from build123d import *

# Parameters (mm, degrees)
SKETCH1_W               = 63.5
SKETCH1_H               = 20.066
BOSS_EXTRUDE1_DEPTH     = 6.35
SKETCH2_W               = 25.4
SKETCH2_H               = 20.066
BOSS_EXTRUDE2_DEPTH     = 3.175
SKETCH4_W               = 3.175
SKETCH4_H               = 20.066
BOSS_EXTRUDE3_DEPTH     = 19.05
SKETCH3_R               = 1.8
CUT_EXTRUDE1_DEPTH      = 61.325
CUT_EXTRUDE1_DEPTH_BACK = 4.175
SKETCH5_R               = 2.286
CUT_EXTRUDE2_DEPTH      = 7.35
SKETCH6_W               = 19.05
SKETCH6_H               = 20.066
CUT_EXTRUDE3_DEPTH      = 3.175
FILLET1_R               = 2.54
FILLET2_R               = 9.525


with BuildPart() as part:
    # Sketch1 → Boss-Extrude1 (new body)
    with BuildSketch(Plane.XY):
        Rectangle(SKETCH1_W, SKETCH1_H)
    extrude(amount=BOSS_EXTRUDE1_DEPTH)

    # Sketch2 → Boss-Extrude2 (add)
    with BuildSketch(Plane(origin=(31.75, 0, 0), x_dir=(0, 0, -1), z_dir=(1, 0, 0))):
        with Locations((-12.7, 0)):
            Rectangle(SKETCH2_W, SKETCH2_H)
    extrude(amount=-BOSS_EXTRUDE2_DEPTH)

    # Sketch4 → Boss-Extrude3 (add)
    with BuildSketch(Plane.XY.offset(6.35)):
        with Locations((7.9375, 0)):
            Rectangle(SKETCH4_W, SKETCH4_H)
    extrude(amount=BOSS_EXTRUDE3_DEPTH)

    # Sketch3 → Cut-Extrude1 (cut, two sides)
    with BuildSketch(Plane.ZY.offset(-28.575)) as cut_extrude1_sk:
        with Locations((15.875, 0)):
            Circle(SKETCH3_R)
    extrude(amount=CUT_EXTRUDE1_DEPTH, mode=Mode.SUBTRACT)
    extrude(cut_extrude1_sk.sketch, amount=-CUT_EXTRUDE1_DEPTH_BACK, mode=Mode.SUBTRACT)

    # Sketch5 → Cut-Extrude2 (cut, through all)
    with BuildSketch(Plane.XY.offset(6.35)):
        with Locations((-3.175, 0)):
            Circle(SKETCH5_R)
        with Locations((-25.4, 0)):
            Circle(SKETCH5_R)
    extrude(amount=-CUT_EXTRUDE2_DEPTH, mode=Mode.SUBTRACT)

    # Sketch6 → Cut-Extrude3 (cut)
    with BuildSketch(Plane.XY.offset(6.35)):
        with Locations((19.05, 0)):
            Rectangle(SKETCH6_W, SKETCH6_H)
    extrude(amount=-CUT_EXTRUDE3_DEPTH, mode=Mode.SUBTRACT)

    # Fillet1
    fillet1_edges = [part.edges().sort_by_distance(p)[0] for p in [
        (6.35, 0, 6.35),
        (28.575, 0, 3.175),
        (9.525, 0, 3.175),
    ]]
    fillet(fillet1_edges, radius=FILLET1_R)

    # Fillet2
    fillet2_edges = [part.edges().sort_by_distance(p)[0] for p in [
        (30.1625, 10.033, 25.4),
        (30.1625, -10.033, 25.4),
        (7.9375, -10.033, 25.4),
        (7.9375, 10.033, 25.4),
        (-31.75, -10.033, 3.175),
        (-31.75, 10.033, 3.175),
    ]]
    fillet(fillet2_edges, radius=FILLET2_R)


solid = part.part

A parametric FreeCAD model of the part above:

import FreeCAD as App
import Part
import Sketcher

V = App.Vector
Q = App.Units.Quantity


def edges_at(feature, points):
    """Names of the edges that pass closest to the given points."""
    edges = feature.Shape.Edges
    near = lambda p: min(range(len(edges)), key=lambda i: edges[i].distToShape(Part.Vertex(*p))[0])
    return sorted({f"Edge{near(p) + 1}" for p in points})

doc = App.newDocument("Part")
body = doc.addObject("PartDesign::Body", "Body")

# Sketch on XY plane
sketch1 = body.newObject("Sketcher::SketchObject", "Sketch")
sketch1.AttachmentSupport = (doc.getObject("XY_Plane"), [""])
sketch1.MapMode = "FlatFace"
sketch1.addGeometry([
    Part.LineSegment(V(-32, 10, 0), V(-32, -10, 0)),
    Part.LineSegment(V(-32, -10, 0), V(32, -10, 0)),
    Part.LineSegment(V(32, -10, 0), V(32, 10, 0)),
    Part.LineSegment(V(32, 10, 0), V(-32, 10, 0)),
], False)
sketch1.addConstraint([
    Sketcher.Constraint("Coincident", 0, 2, 1, 1),
    Sketcher.Constraint("Coincident", 1, 2, 2, 1),
    Sketcher.Constraint("Coincident", 2, 2, 3, 1),
    Sketcher.Constraint("Coincident", 3, 2, 0, 1),
    Sketcher.Constraint("Vertical", 0),
    Sketcher.Constraint("Horizontal", 1),
    Sketcher.Constraint("Vertical", 2),
    Sketcher.Constraint("Horizontal", 3),
    Sketcher.Constraint("Symmetric", 0, 2, 2, 2, -1, 1),
    Sketcher.Constraint("DistanceX", 1, 1, 1, 2, Q("2.5 in")),
    Sketcher.Constraint("DistanceY", 0, 2, 0, 1, Q("0.79 in")),
])
pad1 = body.newObject("PartDesign::Pad", "Pad")
pad1.Profile = sketch1
pad1.Length = Q("0.25 in")

# Sketch on YZ plane
sketch2 = body.newObject("Sketcher::SketchObject", "Sketch001")
sketch2.AttachmentSupport = (doc.getObject("YZ_Plane"), [""])
sketch2.MapMode = "FlatFace"
sketch2.AttachmentOffset = App.Placement(V(0, 0, 1.25 * 25.4), App.Rotation())
sketch2.addGeometry([
    Part.LineSegment(V(10, 25, 0), V(-10, 25, 0)),
    Part.LineSegment(V(-10, 25, 0), V(-10, 0, 0)),
    Part.LineSegment(V(-10, 0, 0), V(10, 0, 0)),
    Part.LineSegment(V(10, 0, 0), V(10, 25, 0)),
], False)
sketch2.addConstraint([
    Sketcher.Constraint("Coincident", 0, 2, 1, 1),
    Sketcher.Constraint("Coincident", 1, 2, 2, 1),
    Sketcher.Constraint("Coincident", 2, 2, 3, 1),
    Sketcher.Constraint("Coincident", 3, 2, 0, 1),
    Sketcher.Constraint("Horizontal", 0),
    Sketcher.Constraint("Vertical", 1),
    Sketcher.Constraint("Horizontal", 2),
    Sketcher.Constraint("Vertical", 3),
    Sketcher.Constraint("Symmetric", 1, 2, 2, 2, -1, 1),
    Sketcher.Constraint("DistanceY", 1, 2, 1, 1, Q("1 in")),
    Sketcher.Constraint("DistanceX", 0, 2, 0, 1, Q("0.79 in")),
])
pad2 = body.newObject("PartDesign::Pad", "Pad001")
pad2.Profile = sketch2
pad2.Length = Q("0.125 in")
pad2.Reversed = True

# Sketch on XY plane
sketch3 = body.newObject("Sketcher::SketchObject", "Sketch002")
sketch3.AttachmentSupport = (doc.getObject("XY_Plane"), [""])
sketch3.MapMode = "FlatFace"
sketch3.AttachmentOffset = App.Placement(V(0, 0, 0.25 * 25.4), App.Rotation())
sketch3.addGeometry([
    Part.LineSegment(V(6.3, 10, 0), V(6.3, -10, 0)),
    Part.LineSegment(V(6.3, -10, 0), V(9.5, -10, 0)),
    Part.LineSegment(V(9.5, -10, 0), V(9.5, 10, 0)),
    Part.LineSegment(V(9.5, 10, 0), V(6.3, 10, 0)),
], False)
sketch3.addConstraint([
    Sketcher.Constraint("Coincident", 0, 2, 1, 1),
    Sketcher.Constraint("Coincident", 1, 2, 2, 1),
    Sketcher.Constraint("Coincident", 2, 2, 3, 1),
    Sketcher.Constraint("Coincident", 3, 2, 0, 1),
    Sketcher.Constraint("Vertical", 0),
    Sketcher.Constraint("Horizontal", 1),
    Sketcher.Constraint("Vertical", 2),
    Sketcher.Constraint("Horizontal", 3),
    Sketcher.Constraint("DistanceY", 0, 2, 0, 1, Q("0.79 in")),
    Sketcher.Constraint("DistanceX", 1, 1, 1, 2, Q("0.125 in")),
    Sketcher.Constraint("DistanceX", -1, 1, 0, 2, Q("0.25 in")),
    Sketcher.Constraint("DistanceY", 0, 2, -1, 1, Q("0.395 in")),
])
pad3 = body.newObject("PartDesign::Pad", "Pad002")
pad3.Profile = sketch3
pad3.Length = Q("0.75 in")

# Sketch on YZ plane
sketch4 = body.newObject("Sketcher::SketchObject", "Sketch003")
sketch4.AttachmentSupport = (doc.getObject("YZ_Plane"), [""])
sketch4.MapMode = "FlatFace"
sketch4.AttachmentOffset = App.Placement(V(0, 0, 1.125 * 25.4), App.Rotation())
sketch4.addGeometry(Part.Circle(V(0, 15.9, 0), V(0, 0, 1), 1.8), False)
sketch4.addConstraint([
    Sketcher.Constraint("PointOnObject", 0, 3, -2),
    Sketcher.Constraint("Diameter", 0, 3.6),
    Sketcher.Constraint("DistanceY", -1, 1, 0, 3, Q("0.625 in")),
])
pocket1 = body.newObject("PartDesign::Pocket", "Pocket")
pocket1.Profile = sketch4
pocket1.Type = "ThroughAll"
pocket1.Midplane = True

# Sketch on XY plane
sketch5 = body.newObject("Sketcher::SketchObject", "Sketch004")
sketch5.AttachmentSupport = (doc.getObject("XY_Plane"), [""])
sketch5.MapMode = "FlatFace"
sketch5.AttachmentOffset = App.Placement(V(0, 0, 0.25 * 25.4), App.Rotation())
sketch5.addGeometry([
    Part.Circle(V(-3.2, 0, 0), V(0, 0, 1), 2.3),
    Part.Circle(V(-25.4, 0, 0), V(0, 0, 1), 2.3),
], False)
sketch5.addConstraint([
    Sketcher.Constraint("Equal", 0, 1),
    Sketcher.Constraint("PointOnObject", 0, 3, -1),
    Sketcher.Constraint("PointOnObject", 1, 3, -1),
    Sketcher.Constraint("Diameter", 0, Q("0.18 in")),
    Sketcher.Constraint("DistanceX", 1, 3, -1, 1, Q("1 in")),
    Sketcher.Constraint("DistanceX", 0, 3, -1, 1, Q("0.125 in")),
])
pocket2 = body.newObject("PartDesign::Pocket", "Pocket001")
pocket2.Profile = sketch5
pocket2.Type = "ThroughAll"

# Sketch on XY plane
sketch6 = body.newObject("Sketcher::SketchObject", "Sketch005")
sketch6.AttachmentSupport = (doc.getObject("XY_Plane"), [""])
sketch6.MapMode = "FlatFace"
sketch6.AttachmentOffset = App.Placement(V(0, 0, 0.25 * 25.4), App.Rotation())
sketch6.addGeometry([
    Part.LineSegment(V(10, 10, 0), V(10, -10, 0)),
    Part.LineSegment(V(10, -10, 0), V(29, -10, 0)),
    Part.LineSegment(V(29, -10, 0), V(29, 10, 0)),
    Part.LineSegment(V(29, 10, 0), V(10, 10, 0)),
], False)
sketch6.addConstraint([
    Sketcher.Constraint("Coincident", 0, 2, 1, 1),
    Sketcher.Constraint("Coincident", 1, 2, 2, 1),
    Sketcher.Constraint("Coincident", 2, 2, 3, 1),
    Sketcher.Constraint("Coincident", 3, 2, 0, 1),
    Sketcher.Constraint("Vertical", 0),
    Sketcher.Constraint("Horizontal", 1),
    Sketcher.Constraint("Vertical", 2),
    Sketcher.Constraint("Horizontal", 3),
    Sketcher.Constraint("DistanceX", 1, 1, 1, 2, Q("0.75 in")),
    Sketcher.Constraint("DistanceY", 0, 2, 0, 1, Q("0.79 in")),
    Sketcher.Constraint("DistanceX", -1, 1, 0, 2, Q("0.375 in")),
    Sketcher.Constraint("DistanceY", 0, 2, -1, 1, Q("0.395 in")),
])
pocket3 = body.newObject("PartDesign::Pocket", "Pocket002")
pocket3.Profile = sketch6
pocket3.Length = Q("0.125 in")
doc.recompute()

fillet = body.newObject("PartDesign::Fillet", "Fillet")
fillet.Base = (pocket3, edges_at(pocket3, [(6.35, 0, 6.35), (28.575, 0, 3.175), (9.525, 0, 3.175)]))
fillet.Radius = Q("0.1 in")
doc.recompute()

fillet2 = body.newObject("PartDesign::Fillet", "Fillet001")
fillet2.Base = (fillet, edges_at(fillet, [
    (30.163, 10.033, 25.4),
    (30.163, -10.033, 25.4),
    (7.938, -10.033, 25.4),
    (7.938, 10.033, 25.4),
    (-31.75, -10.033, 3.175),
    (-31.75, 10.033, 3.175),
]))
fillet2.Radius = Q("0.375 in")

doc.recompute()
